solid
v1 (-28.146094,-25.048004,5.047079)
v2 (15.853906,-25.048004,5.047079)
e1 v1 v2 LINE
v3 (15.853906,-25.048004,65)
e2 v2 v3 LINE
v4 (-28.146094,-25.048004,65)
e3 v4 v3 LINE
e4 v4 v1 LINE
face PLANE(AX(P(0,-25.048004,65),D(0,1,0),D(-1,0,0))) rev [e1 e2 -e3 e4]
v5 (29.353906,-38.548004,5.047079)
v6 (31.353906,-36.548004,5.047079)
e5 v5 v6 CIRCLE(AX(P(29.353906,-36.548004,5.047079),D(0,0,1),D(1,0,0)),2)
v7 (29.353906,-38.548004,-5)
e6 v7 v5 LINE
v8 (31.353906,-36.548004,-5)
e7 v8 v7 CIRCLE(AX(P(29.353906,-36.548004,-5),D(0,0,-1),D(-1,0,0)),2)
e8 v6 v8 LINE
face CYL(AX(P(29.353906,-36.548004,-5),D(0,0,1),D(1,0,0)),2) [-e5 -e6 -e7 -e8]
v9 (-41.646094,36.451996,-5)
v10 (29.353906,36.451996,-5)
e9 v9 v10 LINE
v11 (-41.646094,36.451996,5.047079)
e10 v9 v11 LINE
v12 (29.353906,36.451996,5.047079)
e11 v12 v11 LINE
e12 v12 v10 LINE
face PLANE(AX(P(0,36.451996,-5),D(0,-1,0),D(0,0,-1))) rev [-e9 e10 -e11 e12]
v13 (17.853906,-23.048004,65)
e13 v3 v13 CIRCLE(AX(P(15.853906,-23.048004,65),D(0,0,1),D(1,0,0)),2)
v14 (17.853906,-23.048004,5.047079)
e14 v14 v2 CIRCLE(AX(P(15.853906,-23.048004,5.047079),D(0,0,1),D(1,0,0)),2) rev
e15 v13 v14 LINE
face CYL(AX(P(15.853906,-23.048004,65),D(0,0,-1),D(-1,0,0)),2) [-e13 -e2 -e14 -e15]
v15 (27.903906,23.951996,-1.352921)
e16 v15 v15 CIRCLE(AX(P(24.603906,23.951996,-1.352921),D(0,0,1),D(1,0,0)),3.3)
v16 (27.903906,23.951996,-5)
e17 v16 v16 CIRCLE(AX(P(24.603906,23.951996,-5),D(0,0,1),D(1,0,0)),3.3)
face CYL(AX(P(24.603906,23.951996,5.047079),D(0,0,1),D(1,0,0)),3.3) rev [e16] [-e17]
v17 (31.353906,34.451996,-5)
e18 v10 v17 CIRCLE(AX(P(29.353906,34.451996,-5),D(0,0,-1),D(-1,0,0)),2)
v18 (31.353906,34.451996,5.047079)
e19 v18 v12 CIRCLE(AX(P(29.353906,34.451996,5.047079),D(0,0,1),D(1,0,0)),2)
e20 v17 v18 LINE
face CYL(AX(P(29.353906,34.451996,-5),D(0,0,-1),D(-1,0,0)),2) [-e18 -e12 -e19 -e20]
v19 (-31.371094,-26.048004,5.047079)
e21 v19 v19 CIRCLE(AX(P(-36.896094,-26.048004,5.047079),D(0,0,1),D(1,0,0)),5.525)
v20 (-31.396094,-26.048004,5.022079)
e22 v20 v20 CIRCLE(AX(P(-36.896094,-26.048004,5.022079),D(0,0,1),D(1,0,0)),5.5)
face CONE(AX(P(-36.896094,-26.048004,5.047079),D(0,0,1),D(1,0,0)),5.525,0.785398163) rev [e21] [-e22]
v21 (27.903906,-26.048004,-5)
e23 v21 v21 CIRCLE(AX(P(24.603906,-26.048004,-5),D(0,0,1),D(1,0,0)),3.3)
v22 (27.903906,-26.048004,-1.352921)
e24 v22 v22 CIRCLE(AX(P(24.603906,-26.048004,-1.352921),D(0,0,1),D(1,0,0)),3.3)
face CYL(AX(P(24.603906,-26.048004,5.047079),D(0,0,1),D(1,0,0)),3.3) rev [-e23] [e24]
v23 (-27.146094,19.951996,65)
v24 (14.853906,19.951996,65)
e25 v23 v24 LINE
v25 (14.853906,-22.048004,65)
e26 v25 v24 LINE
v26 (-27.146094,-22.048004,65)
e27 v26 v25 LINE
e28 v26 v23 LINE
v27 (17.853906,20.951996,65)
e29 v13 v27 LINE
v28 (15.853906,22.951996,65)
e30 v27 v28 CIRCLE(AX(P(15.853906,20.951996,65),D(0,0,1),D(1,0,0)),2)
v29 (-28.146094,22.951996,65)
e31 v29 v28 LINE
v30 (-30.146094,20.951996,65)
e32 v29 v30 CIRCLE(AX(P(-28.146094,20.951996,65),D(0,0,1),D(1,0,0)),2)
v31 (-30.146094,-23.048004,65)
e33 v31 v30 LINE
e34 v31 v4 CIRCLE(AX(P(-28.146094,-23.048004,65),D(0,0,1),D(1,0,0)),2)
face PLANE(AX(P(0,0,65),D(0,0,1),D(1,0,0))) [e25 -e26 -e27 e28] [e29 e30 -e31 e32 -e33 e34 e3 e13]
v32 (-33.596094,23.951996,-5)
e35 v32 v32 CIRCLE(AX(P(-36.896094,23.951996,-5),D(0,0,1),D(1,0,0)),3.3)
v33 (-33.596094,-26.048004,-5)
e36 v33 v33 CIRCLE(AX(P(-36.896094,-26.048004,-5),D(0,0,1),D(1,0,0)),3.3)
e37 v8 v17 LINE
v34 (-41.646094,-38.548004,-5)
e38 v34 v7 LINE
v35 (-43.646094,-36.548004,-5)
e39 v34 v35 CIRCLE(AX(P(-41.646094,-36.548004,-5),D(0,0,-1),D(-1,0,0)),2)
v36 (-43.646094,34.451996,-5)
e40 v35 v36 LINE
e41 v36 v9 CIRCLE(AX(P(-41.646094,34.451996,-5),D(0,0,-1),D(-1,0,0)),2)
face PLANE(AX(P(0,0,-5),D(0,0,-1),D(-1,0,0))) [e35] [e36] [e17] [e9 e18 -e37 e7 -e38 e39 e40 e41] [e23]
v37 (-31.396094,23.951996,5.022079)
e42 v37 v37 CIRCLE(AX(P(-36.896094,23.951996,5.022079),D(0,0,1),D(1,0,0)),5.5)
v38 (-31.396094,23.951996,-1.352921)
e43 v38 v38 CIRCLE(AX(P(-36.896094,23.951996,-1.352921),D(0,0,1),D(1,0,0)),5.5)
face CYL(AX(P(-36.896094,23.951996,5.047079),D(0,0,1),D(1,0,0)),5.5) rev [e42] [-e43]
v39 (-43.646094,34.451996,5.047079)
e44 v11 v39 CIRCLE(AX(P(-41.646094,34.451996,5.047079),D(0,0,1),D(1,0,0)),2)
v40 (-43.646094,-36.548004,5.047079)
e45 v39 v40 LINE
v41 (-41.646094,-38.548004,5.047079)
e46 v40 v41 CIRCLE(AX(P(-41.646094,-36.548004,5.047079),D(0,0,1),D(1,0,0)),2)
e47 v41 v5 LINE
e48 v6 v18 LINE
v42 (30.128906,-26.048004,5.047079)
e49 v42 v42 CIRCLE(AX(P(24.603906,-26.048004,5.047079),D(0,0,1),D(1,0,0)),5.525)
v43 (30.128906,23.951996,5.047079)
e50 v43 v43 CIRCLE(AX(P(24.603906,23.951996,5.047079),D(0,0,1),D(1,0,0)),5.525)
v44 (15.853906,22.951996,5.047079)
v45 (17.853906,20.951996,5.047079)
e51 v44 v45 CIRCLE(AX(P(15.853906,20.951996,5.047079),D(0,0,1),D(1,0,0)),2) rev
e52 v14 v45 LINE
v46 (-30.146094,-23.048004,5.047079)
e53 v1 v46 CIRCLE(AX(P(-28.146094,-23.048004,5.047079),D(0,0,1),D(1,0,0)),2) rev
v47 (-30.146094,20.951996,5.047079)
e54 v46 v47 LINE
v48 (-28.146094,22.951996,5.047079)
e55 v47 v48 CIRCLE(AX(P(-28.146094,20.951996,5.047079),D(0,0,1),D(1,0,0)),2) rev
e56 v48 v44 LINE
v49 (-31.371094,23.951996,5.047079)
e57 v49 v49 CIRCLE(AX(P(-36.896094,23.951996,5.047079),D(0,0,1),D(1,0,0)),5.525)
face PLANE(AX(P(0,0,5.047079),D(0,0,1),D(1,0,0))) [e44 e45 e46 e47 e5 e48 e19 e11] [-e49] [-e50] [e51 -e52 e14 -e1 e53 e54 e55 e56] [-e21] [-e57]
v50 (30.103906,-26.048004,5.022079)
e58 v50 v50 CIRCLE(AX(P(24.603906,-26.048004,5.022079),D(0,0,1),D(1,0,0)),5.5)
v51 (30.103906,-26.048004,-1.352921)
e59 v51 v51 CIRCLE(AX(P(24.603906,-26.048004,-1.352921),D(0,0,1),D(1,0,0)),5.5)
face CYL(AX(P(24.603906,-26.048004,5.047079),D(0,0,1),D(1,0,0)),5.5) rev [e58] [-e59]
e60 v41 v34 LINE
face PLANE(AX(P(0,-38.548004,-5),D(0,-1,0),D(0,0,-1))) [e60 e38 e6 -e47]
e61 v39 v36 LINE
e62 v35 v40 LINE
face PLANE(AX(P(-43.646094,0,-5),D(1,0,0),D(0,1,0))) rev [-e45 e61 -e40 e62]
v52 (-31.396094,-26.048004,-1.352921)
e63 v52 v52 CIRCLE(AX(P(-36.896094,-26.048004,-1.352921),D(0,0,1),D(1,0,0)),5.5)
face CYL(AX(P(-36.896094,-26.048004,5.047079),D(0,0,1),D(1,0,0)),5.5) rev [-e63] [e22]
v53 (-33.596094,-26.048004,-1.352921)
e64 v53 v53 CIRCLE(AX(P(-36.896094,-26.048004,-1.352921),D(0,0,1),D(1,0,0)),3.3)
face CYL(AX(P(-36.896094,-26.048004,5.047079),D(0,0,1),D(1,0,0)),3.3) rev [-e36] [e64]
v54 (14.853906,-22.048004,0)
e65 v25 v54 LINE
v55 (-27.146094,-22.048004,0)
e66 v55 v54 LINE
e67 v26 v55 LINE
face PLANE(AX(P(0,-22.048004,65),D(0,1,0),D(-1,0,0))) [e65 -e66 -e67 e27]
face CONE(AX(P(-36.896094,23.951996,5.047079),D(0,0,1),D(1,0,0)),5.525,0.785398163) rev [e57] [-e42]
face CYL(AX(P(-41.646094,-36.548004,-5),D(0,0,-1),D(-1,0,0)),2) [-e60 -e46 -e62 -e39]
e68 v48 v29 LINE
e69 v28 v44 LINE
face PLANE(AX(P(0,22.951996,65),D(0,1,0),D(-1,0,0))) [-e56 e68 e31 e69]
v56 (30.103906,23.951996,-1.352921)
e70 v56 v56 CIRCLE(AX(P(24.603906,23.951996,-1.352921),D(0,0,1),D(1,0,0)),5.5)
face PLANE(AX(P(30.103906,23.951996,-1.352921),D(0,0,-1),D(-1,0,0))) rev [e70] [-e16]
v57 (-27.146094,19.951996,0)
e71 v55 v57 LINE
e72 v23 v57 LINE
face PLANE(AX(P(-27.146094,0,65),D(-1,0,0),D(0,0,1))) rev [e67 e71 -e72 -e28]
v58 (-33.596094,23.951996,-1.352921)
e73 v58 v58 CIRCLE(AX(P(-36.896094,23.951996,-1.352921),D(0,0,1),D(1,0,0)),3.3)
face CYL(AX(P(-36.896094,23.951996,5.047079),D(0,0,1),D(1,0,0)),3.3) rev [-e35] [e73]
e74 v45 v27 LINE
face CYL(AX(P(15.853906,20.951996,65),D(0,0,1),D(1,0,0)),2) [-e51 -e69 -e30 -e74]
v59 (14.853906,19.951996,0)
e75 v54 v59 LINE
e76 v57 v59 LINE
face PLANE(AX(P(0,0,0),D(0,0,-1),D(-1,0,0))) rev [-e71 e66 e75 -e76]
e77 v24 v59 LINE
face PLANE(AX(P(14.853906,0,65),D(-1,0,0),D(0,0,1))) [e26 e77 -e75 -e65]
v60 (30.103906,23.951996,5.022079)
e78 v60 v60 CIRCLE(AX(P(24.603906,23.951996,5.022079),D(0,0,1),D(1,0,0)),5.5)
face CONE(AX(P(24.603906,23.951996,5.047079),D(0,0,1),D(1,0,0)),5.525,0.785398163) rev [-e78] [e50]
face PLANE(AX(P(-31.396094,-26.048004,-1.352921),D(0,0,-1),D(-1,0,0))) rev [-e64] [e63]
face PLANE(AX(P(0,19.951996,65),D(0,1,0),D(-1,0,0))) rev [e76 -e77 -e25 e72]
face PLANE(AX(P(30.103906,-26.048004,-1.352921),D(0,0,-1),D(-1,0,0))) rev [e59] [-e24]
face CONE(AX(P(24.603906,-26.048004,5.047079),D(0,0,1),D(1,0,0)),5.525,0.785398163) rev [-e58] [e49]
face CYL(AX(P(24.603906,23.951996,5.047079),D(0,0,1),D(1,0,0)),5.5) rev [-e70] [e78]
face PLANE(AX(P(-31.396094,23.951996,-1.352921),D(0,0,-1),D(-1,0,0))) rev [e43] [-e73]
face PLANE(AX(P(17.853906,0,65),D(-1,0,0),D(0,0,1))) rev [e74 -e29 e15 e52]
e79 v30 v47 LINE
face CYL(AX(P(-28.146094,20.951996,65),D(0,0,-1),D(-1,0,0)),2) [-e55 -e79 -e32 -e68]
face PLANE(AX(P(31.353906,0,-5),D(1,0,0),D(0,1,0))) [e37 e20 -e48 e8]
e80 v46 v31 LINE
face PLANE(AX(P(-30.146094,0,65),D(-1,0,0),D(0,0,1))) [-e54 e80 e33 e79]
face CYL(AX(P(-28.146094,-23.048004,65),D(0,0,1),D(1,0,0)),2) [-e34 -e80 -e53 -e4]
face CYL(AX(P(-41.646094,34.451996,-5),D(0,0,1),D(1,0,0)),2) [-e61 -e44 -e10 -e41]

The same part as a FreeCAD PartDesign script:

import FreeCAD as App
import Part
import Sketcher

V = App.Vector
Q = App.Units.Quantity


def edges_at(feature, points):
    """Names of the edges that pass closest to the given points."""
    edges = feature.Shape.Edges
    near = lambda p: min(range(len(edges)), key=lambda i: edges[i].distToShape(Part.Vertex(*p))[0])
    return sorted({f"Edge{near(p) + 1}" for p in points})


def add_polygon(sketch, points):
    """Adds a closed chain of lines whose ends are joined by coincident constraints."""
    first, n = sketch.GeometryCount, len(points)
    for a, b in zip(points, points[1:] + points[:1]):
        sketch.addGeometry(Part.LineSegment(App.Vector(*a, 0), App.Vector(*b, 0)), False)
    for i in range(n):
        sketch.addConstraint(Sketcher.Constraint("Coincident", first + i, 2, first + (i + 1) % n, 1))

doc = App.newDocument("Part")
body = doc.addObject("PartDesign::Body", "Body")

# Sketch on XY plane
sketch1 = doc.addObject("Sketcher::SketchObject", "Sketch")
body.addObject(sketch1)
sketch1.AttachmentSupport = (doc.XY_Plane, [""])
sketch1.MapMode = "FlatFace"
add_polygon(sketch1, [(-30, -25), (18, -25), (18, 23), (-30, 23)])  # lines 0-3
add_polygon(sketch1, [(15, 20), (15, -22), (-27, -22), (-27, 20)])  # lines 4-7
sketch1.addConstraint(Sketcher.Constraint("Horizontal", 0))
sketch1.addConstraint(Sketcher.Constraint("Vertical", 1))
sketch1.addConstraint(Sketcher.Constraint("Horizontal", 2))
sketch1.addConstraint(Sketcher.Constraint("Vertical", 3))
sketch1.addConstraint(Sketcher.Constraint("Vertical", 4))
sketch1.addConstraint(Sketcher.Constraint("Horizontal", 5))
sketch1.addConstraint(Sketcher.Constraint("Vertical", 6))
sketch1.addConstraint(Sketcher.Constraint("Horizontal", 7))
sketch1.addConstraint(Sketcher.Constraint("Equal", 2, 1))
sketch1.addConstraint(Sketcher.Constraint("Equal", 7, 4))
sketch1.addConstraint(Sketcher.Constraint("DistanceX", 0, 1, 0, 2, Q("48 mm")))
sketch1.addConstraint(Sketcher.Constraint("DistanceX", 5, 2, 5, 1, Q("42 mm")))
sketch1.addConstraint(Sketcher.Constraint("DistanceX", 4, 2, 0, 2, Q("3 mm")))
sketch1.addConstraint(Sketcher.Constraint("DistanceY", 0, 2, 4, 2, Q("3 mm")))
sketch1.addConstraint(Sketcher.Constraint("DistanceX", -1, 1, 0, 2, Q("17.853906 mm")))
sketch1.addConstraint(Sketcher.Constraint("DistanceY", 0, 2, -1, 1, Q("25.048004 mm")))
pad1 = doc.addObject("PartDesign::Pad", "Pad")
body.addObject(pad1)
pad1.Profile = sketch1
pad1.Length = 65

# Sketch on XY plane
sketch2 = doc.addObject("Sketcher::SketchObject", "Sketch001")
body.addObject(sketch2)
sketch2.AttachmentSupport = (doc.XY_Plane, [""])
sketch2.MapMode = "FlatFace"
add_polygon(sketch2, [(-44, -39), (-44, 36), (31, 36), (31, -39)])  # lines 0-3
sketch2.addConstraint(Sketcher.Constraint("Vertical", 0))
sketch2.addConstraint(Sketcher.Constraint("Horizontal", 1))
sketch2.addConstraint(Sketcher.Constraint("Vertical", 2))
sketch2.addConstraint(Sketcher.Constraint("Horizontal", 3))
sketch2.addConstraint(Sketcher.Constraint("Equal", 3, 0))
sketch2.addConstraint(Sketcher.Constraint("DistanceX", 1, 1, 1, 2, Q("75 mm")))
sketch2.addConstraint(Sketcher.Constraint("DistanceX", 0, 2, -1, 1, Q("43.646094 mm")))
sketch2.addConstraint(Sketcher.Constraint("DistanceY", -1, 1, 0, 2, Q("36.451996 mm")))
pad2 = doc.addObject("PartDesign::Pad", "Pad001")
body.addObject(pad2)
pad2.Profile = sketch2
pad2.Length = 5
pad2.Reversed = True

# Sketch on XY plane
sketch3 = doc.addObject("Sketcher::SketchObject", "Sketch002")
body.addObject(sketch3)
sketch3.AttachmentSupport = (doc.XY_Plane, [""])
sketch3.MapMode = "FlatFace"
add_polygon(sketch3, [(-44, 36), (-44, -39), (31, -39), (31, 36)])  # lines 0-3
add_polygon(sketch3, [(15, -22), (-27, -22), (-27, 20), (15, 20)])  # lines 4-7
sketch3.addConstraint(Sketcher.Constraint("Vertical", 0))
sketch3.addConstraint(Sketcher.Constraint("Horizontal", 1))
sketch3.addConstraint(Sketcher.Constraint("Vertical", 2))
sketch3.addConstraint(Sketcher.Constraint("Horizontal", 3))
sketch3.addConstraint(Sketcher.Constraint("Horizontal", 4))
sketch3.addConstraint(Sketcher.Constraint("Vertical", 5))
sketch3.addConstraint(Sketcher.Constraint("Horizontal", 6))
sketch3.addConstraint(Sketcher.Constraint("Vertical", 7))
sketch3.addConstraint(Sketcher.Constraint("Equal", 3, 0))
sketch3.addConstraint(Sketcher.Constraint("Equal", 6, 5))
sketch3.addConstraint(Sketcher.Constraint("DistanceX", 1, 1, 1, 2, Q("75 mm")))
sketch3.addConstraint(Sketcher.Constraint("DistanceX", 4, 2, 4, 1, Q("42 mm")))
sketch3.addConstraint(Sketcher.Constraint("DistanceX", 0, 2, 4, 2, Q("16.5 mm")))
sketch3.addConstraint(Sketcher.Constraint("DistanceY", 0, 2, 4, 2, Q("16.5 mm")))
sketch3.addConstraint(Sketcher.Constraint("DistanceX", 0, 2, -1, 1, Q("43.646094 mm")))
sketch3.addConstraint(Sketcher.Constraint("DistanceY", 0, 2, -1, 1, Q("38.548004 mm")))
pad3 = doc.addObject("PartDesign::Pad", "Pad002")
body.addObject(pad3)
pad3.Profile = sketch3
pad3.Length = 5.047079
doc.recompute()

fillet = doc.addObject("PartDesign::Fillet", "Fillet")
body.addObject(fillet)
fillet.Base = (pad3, edges_at(pad3, [
    (17.854, 22.952, 35.024),
    (17.854, -25.048, 35.024),
    (-30.146, -25.048, 35.024),
    (-30.146, 22.952, 35.024),
    (-43.646, -38.548, 0.024),
    (31.354, -38.548, 0.024),
    (31.354, 36.452, 0.024),
    (-43.646, 36.452, 0.024),
]))
fillet.Radius = 2

# Sketch on YZ plane
sketch4 = doc.addObject("Sketcher::SketchObject", "Sketch003")
body.addObject(sketch4)
sketch4.AttachmentSupport = (doc.YZ_Plane, [""])
sketch4.MapMode = "FlatFace"
sketch4.AttachmentOffset = App.Placement(V(0, 0, -36.896094), App.Rotation())
add_polygon(sketch4, [(23.952, -5), (23.952, 5.047), (18.427, 5.047), (18.452, 5.022), (18.452, -1.353), (20.652, -1.353), (20.652, -5)])  # lines 0-6
sketch4.addGeometry(Part.LineSegment(V(23.952, 5.047, 0), V(23.952, -5, 0)), True)  # axis
sketch4.addConstraint(Sketcher.Constraint("Vertical", 0))
sketch4.addConstraint(Sketcher.Constraint("Horizontal", 1))
sketch4.addConstraint(Sketcher.Constraint("Vertical", 3))
sketch4.addConstraint(Sketcher.Constraint("Horizontal", 4))
sketch4.addConstraint(Sketcher.Constraint("Vertical", 5))
sketch4.addConstraint(Sketcher.Constraint("Horizontal", 6))
sketch4.addConstraint(Sketcher.Constraint("Vertical", 7))
sketch4.addConstraint(Sketcher.Constraint("Coincident", 7, 1, 0, 2))
sketch4.addConstraint(Sketcher.Constraint("Horizontal", 5, 2, 7, 2))
sketch4.addConstraint(Sketcher.Constraint("Angle", 2, Q("-45 deg")))
sketch4.addConstraint(Sketcher.Constraint("DistanceX", 4, 1, 4, 2, Q("2.2 mm")))
sketch4.addConstraint(Sketcher.Constraint("DistanceX", 6, 1, 6, 2, Q("3.3 mm")))
sketch4.addConstraint(Sketcher.Constraint("DistanceY", 5, 2, -1, 1, Q("5 mm")))
sketch4.addConstraint(Sketcher.Constraint("DistanceY", 3, 2, 1, 2, Q("6.4 mm")))
sketch4.addConstraint(Sketcher.Constraint("DistanceX", 1, 2, 1, 1, Q("5.525 mm")))
sketch4.addConstraint(Sketcher.Constraint("DistanceY", 0, 1, 0, 2, Q("10.047079 mm")))
sketch4.addConstraint(Sketcher.Constraint("DistanceX", -1, 1, 0, 2, Q("23.951996 mm")))
groove = doc.addObject("PartDesign::Groove", "Groove")
body.addObject(groove)
groove.Profile = sketch4
groove.ReferenceAxis = (sketch4, ["Axis0"])
groove.Angle = 360
doc.recompute()

linearpattern = doc.addObject("PartDesign::LinearPattern", "LinearPattern")
body.addObject(linearpattern)
linearpattern.Originals = [groove]
linearpattern.Direction = (doc.Y_Axis, [""])
linearpattern.Mode = "offset"
linearpattern.Offset = 50
linearpattern.Occurrences = 2
linearpattern.Reversed = True
body.Tip = linearpattern
doc.recompute()

linearpattern2 = doc.addObject("PartDesign::LinearPattern", "LinearPattern001")
body.addObject(linearpattern2)
linearpattern2.Originals = [groove]
linearpattern2.Direction = (doc.X_Axis, [""])
linearpattern2.Mode = "offset"
linearpattern2.Offset = 61.5
linearpattern2.Occurrences = 2
body.Tip = linearpattern2
doc.recompute()

datumline = doc.addObject("PartDesign::Line", "DatumLine")
body.addObject(datumline)
datumline.Placement = App.Placement(V(0, 0, 0), App.Rotation(V(0, 0, 1), V(0.775921004, -0.630830085, 0)))
linearpattern3 = doc.addObject("PartDesign::LinearPattern", "LinearPattern002")
body.addObject(linearpattern3)
linearpattern3.Originals = [groove]
linearpattern3.Direction = (datumline, [""])
linearpattern3.Mode = "offset"
linearpattern3.Offset = 79.260646
linearpattern3.Occurrences = 2
body.Tip = linearpattern3

doc.recompute()
